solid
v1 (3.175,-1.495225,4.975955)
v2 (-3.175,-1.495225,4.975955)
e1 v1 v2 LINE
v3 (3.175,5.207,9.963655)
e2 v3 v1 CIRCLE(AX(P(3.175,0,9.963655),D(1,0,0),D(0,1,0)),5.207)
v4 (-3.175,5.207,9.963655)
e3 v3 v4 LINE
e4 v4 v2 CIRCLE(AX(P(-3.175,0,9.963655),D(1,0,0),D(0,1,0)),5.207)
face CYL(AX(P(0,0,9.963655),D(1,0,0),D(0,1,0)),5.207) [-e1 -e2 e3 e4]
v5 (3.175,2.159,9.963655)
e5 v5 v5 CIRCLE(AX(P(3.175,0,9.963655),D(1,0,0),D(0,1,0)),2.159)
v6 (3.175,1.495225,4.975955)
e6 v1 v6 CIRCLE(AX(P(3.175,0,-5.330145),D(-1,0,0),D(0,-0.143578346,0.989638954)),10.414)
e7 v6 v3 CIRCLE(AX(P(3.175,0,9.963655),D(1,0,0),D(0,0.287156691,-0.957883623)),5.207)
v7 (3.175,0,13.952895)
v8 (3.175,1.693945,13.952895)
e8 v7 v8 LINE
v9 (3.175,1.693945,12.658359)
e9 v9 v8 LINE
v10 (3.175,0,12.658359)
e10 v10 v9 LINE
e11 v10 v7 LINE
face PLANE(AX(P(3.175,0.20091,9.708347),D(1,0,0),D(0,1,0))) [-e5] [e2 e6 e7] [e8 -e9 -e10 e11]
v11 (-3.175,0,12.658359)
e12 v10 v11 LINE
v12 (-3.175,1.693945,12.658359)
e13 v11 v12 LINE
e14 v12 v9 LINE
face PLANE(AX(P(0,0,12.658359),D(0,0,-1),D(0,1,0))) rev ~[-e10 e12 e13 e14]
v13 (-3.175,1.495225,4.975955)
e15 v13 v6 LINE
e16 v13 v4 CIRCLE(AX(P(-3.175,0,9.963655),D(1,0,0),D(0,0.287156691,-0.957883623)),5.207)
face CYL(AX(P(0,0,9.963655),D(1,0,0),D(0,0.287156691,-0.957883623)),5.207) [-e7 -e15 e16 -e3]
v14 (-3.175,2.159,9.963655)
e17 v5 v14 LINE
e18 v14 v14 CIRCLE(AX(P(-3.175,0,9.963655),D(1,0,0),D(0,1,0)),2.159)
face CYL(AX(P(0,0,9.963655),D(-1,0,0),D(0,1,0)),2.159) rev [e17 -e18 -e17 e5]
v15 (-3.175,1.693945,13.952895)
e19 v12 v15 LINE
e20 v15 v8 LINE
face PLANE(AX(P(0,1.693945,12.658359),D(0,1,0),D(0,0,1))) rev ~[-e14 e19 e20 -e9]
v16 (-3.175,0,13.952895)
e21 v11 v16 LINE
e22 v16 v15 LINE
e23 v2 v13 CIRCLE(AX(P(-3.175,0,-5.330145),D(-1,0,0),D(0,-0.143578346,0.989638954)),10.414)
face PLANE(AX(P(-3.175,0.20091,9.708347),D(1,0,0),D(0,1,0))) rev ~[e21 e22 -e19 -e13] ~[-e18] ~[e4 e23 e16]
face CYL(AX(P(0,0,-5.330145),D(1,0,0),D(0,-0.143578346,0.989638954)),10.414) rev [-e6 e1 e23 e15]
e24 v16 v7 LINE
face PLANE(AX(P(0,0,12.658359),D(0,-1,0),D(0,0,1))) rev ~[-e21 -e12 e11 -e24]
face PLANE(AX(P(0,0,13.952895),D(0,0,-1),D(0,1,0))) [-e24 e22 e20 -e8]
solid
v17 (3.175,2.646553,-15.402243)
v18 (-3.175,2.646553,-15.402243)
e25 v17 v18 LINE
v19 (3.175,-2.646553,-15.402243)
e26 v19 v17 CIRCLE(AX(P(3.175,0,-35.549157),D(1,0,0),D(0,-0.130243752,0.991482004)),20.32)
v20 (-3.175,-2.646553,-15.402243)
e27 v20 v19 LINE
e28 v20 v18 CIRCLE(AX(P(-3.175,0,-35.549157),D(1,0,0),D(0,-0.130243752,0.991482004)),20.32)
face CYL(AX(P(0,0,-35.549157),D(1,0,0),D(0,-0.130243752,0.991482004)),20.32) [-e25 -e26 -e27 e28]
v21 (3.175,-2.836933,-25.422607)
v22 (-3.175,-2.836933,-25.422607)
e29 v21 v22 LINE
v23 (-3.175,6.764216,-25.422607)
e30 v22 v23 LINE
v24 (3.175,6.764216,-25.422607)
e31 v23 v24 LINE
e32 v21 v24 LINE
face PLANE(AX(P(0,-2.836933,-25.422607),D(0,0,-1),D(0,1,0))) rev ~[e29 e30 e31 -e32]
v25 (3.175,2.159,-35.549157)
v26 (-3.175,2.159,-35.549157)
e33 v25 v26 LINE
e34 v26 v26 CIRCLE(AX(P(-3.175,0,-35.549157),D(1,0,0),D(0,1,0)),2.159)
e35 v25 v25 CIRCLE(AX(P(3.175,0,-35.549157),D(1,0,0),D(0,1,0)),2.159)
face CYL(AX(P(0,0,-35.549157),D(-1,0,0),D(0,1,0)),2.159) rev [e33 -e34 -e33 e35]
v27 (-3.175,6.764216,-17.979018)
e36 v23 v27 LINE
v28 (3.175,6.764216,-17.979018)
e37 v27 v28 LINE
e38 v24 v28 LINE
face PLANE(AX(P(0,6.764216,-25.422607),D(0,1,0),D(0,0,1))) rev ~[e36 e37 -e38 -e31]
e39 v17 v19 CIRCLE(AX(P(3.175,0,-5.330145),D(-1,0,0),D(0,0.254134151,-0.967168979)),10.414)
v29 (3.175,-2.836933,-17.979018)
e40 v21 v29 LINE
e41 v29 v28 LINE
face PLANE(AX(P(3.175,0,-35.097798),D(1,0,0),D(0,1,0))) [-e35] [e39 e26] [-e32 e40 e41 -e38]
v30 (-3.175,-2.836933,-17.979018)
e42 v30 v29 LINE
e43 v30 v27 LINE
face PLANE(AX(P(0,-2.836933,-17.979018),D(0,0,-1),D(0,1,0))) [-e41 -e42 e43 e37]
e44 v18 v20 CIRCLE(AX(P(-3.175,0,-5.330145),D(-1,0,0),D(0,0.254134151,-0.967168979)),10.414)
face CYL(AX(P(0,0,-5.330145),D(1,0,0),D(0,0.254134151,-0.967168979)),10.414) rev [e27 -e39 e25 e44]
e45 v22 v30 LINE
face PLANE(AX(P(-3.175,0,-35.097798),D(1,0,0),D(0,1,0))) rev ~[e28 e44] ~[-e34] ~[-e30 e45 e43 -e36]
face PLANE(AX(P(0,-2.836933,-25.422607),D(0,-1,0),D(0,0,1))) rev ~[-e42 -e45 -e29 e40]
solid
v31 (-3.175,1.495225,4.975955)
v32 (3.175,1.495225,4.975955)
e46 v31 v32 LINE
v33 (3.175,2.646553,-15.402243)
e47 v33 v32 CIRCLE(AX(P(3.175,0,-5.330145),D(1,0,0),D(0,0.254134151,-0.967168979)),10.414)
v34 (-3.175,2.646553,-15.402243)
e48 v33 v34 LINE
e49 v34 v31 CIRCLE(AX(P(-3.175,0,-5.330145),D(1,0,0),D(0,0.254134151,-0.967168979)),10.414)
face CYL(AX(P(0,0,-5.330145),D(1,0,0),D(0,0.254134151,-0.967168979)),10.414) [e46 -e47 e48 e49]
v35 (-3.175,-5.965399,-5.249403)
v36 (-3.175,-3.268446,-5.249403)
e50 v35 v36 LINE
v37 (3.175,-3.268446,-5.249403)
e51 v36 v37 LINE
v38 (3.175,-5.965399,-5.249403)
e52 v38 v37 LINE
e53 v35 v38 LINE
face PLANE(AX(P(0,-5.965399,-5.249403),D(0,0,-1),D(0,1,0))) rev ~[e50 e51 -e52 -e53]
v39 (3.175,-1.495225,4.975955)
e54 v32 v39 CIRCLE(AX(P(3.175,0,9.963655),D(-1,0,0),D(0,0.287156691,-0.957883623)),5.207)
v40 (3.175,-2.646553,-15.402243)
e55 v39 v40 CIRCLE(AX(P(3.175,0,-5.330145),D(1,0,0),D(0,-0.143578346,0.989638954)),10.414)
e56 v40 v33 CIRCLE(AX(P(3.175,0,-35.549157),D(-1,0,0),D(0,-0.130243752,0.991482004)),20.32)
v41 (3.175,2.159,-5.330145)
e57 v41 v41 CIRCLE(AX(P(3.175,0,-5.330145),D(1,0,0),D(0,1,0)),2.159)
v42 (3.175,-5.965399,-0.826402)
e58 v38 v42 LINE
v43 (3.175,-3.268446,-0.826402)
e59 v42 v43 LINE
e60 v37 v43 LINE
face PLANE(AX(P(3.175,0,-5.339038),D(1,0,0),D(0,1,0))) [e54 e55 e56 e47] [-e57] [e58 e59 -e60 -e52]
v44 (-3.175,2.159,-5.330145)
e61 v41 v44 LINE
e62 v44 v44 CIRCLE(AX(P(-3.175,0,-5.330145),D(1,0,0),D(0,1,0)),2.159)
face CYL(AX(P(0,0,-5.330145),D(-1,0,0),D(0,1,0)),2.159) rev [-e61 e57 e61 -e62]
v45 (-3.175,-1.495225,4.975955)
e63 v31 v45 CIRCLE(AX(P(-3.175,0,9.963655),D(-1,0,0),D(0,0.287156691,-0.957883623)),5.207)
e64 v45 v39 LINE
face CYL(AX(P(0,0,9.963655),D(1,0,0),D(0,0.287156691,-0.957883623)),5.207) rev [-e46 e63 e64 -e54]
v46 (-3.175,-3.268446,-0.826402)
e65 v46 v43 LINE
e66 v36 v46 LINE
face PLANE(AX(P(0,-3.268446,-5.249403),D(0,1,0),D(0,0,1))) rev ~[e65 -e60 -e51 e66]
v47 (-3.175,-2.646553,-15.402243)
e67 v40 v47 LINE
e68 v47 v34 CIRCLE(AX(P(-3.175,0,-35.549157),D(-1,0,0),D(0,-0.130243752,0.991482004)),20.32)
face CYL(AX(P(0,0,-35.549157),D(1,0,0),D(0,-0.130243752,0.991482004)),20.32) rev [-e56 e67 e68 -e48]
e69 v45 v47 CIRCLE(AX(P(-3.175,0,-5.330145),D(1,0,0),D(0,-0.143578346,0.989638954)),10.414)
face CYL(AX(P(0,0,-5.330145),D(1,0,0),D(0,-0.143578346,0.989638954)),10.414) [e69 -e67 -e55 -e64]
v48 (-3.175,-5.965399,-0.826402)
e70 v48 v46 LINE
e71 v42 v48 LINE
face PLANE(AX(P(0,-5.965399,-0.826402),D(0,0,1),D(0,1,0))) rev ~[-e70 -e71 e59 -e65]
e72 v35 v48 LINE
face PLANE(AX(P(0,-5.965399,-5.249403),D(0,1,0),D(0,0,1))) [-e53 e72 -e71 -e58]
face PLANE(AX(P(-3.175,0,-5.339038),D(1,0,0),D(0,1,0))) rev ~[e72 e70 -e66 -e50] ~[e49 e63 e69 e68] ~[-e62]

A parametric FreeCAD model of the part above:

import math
import FreeCAD as App
import Part
import Sketcher

V = App.Vector
Q = App.Units.Quantity

doc = App.newDocument("Part")
params = doc.addObject("Spreadsheet::Sheet", "Params")
for row, (alias, value) in enumerate([
    ("sketch1_diameter", "0.17 in"),
    ("sketch1_radius", "0.41 in"),
    ("sketch1_radius2", "0.205 in"),
    ("pad1_length", "0.25 in"),
    ("sketch2_radius", "0.8 in"),
    ("sketch2_diameter", "0.17 in"),
    ("sketch2_radius2", "0.41 in"),
    ("sketch2_radius3", "0.205 in"),
    ("pad2_length", "0.25 in"),
    ("sketch3_radius", "0.8 in"),
    ("sketch3_diameter", "0.17 in"),
    ("sketch3_radius2", "0.41 in"),
    ("pad3_length", "0.25 in"),
], start=1):
    params.set(f"A{row}", alias)
    params.set(f"B{row}", "=" + value)
    params.setAlias(f"B{row}", alias)

body = doc.addObject("PartDesign::Body", "Body")

# Sketch on YZ plane
sketch1 = doc.addObject("Sketcher::SketchObject", "Sketch")
body.addObject(sketch1)
sketch1.AttachmentSupport = (doc.YZ_Plane, [""])
sketch1.MapMode = "FlatFace"
sketch1.addGeometry(Part.ArcOfCircle(Part.Circle(V(0, -5.3, 0), V(0, 0, 1), 10.4), math.radians(81.75), math.radians(98.25)), False)
sketch1.addGeometry(Part.ArcOfCircle(Part.Circle(V(0, 10, 0), V(0, 0, 1), 5.2), math.radians(-73), math.radians(0)), False)
sketch1.addGeometry(Part.ArcOfCircle(Part.Circle(V(0, 10, 0), V(0, 0, 1), 5.2), math.radians(0), math.radians(253)), False)
sketch1.addGeometry(Part.Circle(V(0, 10, 0), V(0, 0, 1), 2.2), False)
sketch1.addGeometry(Part.LineSegment(V(1.7, 12.7, 0), V(0, 12.7, 0)), False)
sketch1.addGeometry(Part.LineSegment(V(0, 12.7, 0), V(0, 14, 0)), False)
sketch1.addGeometry(Part.LineSegment(V(0, 14, 0), V(1.7, 14, 0)), False)
sketch1.addGeometry(Part.LineSegment(V(1.7, 14, 0), V(1.7, 12.7, 0)), False)
sketch1.addConstraint(Sketcher.Constraint("Coincident", 0, 1, 1, 1))
sketch1.addConstraint(Sketcher.Constraint("Tangent", 1, 2, 2, 1))
sketch1.addConstraint(Sketcher.Constraint("Coincident", 2, 2, 0, 2))
sketch1.addConstraint(Sketcher.Constraint("Coincident", 4, 2, 5, 1))
sketch1.addConstraint(Sketcher.Constraint("Coincident", 5, 2, 6, 1))
sketch1.addConstraint(Sketcher.Constraint("Coincident", 6, 2, 7, 1))
sketch1.addConstraint(Sketcher.Constraint("Coincident", 7, 2, 4, 1))
sketch1.addConstraint(Sketcher.Constraint("Horizontal", 4))
sketch1.addConstraint(Sketcher.Constraint("Vertical", 5))
sketch1.addConstraint(Sketcher.Constraint("Horizontal", 6))
sketch1.addConstraint(Sketcher.Constraint("Vertical", 7))
sketch1.addConstraint(Sketcher.Constraint("Coincident", 3, 3, 1, 3))
sketch1.addConstraint(Sketcher.Constraint("Equal", 1, 2))
sketch1.addConstraint(Sketcher.Constraint("Symmetric", 0, 1, 2, 2, -2))
sketch1.addConstraint(Sketcher.Constraint("PointOnObject", 4, 2, -2))
sketch1.addConstraint(Sketcher.Constraint("Horizontal", 3, 3, 1, 2))
sketch1.addConstraint(Sketcher.Constraint("Diameter", 3, Q("0.17 in")))
sketch1.addConstraint(Sketcher.Constraint("Radius", 0, Q("0.41 in")))
sketch1.addConstraint(Sketcher.Constraint("Radius", 1, Q("0.205 in")))
sketch1.addConstraint(Sketcher.Constraint("DistanceY", 0, 3, 1, 3, 15.2938))
sketch1.addConstraint(Sketcher.Constraint("DistanceX", 4, 2, 4, 1, 1.693945))
sketch1.addConstraint(Sketcher.Constraint("DistanceY", 5, 1, 5, 2, 1.294537))
sketch1.addConstraint(Sketcher.Constraint("DistanceY", -1, 1, 4, 2, 12.658359))
sketch1.addConstraint(Sketcher.Constraint("DistanceY", 1, 3, 5, 2, 3.98924))
sketch1.setExpression("Constraints[16]", "Params.sketch1_diameter")
sketch1.setExpression("Constraints[17]", "Params.sketch1_radius")
sketch1.setExpression("Constraints[18]", "Params.sketch1_radius2")
pad1 = doc.addObject("PartDesign::Pad", "Pad")
body.addObject(pad1)
pad1.Profile = sketch1
pad1.setExpression("Length", "Params.pad1_length")
pad1.Midplane = True
body2 = doc.addObject("PartDesign::Body", "Body001")

# Sketch on YZ plane
sketch2 = doc.addObject("Sketcher::SketchObject", "Sketch001")
body2.addObject(sketch2)
sketch2.AttachmentSupport = (doc.getObject("YZ_Plane001"), [""])
sketch2.MapMode = "FlatFace"
sketch2.addGeometry(Part.ArcOfCircle(Part.Circle(V(0, -5.3, 0), V(0, 0, 1), 10.4), math.radians(-75), math.radians(82)), False)
sketch2.addGeometry(Part.ArcOfCircle(Part.Circle(V(0, 10, 0), V(0, 0, 1), 5.2), math.radians(-107), math.radians(-73)), False)
sketch2.addGeometry(Part.ArcOfCircle(Part.Circle(V(0, -5.3, 0), V(0, 0, 1), 10.4), math.radians(98), math.radians(255)), False)
sketch2.addGeometry(Part.ArcOfCircle(Part.Circle(V(0, -35.5, 0), V(0, 0, 1), 20.3), math.radians(82.52), math.radians(97.48)), False)
sketch2.addGeometry(Part.Circle(V(0, -5.3, 0), V(0, 0, 1), 2.2), False)
sketch2.addGeometry(Part.LineSegment(V(-3.3, -5.2, 0), V(-6, -5.2, 0)), False)
sketch2.addGeometry(Part.LineSegment(V(-6, -5.2, 0), V(-6, -0.8, 0)), False)
sketch2.addGeometry(Part.LineSegment(V(-6, -0.8, 0), V(-3.3, -0.8, 0)), False)
sketch2.addGeometry(Part.LineSegment(V(-3.3, -0.8, 0), V(-3.3, -5.2, 0)), False)
sketch2.addConstraint(Sketcher.Constraint("Coincident", 0, 2, 1, 2))
sketch2.addConstraint(Sketcher.Constraint("Coincident", 1, 1, 2, 1))
sketch2.addConstraint(Sketcher.Constraint("Coincident", 2, 2, 3, 2))
sketch2.addConstraint(Sketcher.Constraint("Coincident", 3, 1, 0, 1))
sketch2.addConstraint(Sketcher.Constraint("Coincident", 5, 2, 6, 1))
sketch2.addConstraint(Sketcher.Constraint("Coincident", 6, 2, 7, 1))
sketch2.addConstraint(Sketcher.Constraint("Coincident", 7, 2, 8, 1))
sketch2.addConstraint(Sketcher.Constraint("Coincident", 8, 2, 5, 1))
sketch2.addConstraint(Sketcher.Constraint("Horizontal", 5))
sketch2.addConstraint(Sketcher.Constraint("Vertical", 6))
sketch2.addConstraint(Sketcher.Constraint("Horizontal", 7))
sketch2.addConstraint(Sketcher.Constraint("Vertical", 8))
sketch2.addConstraint(Sketcher.Constraint("Coincident", 2, 3, 0, 3))
sketch2.addConstraint(Sketcher.Constraint("Coincident", 4, 3, 0, 3))
sketch2.addConstraint(Sketcher.Constraint("Equal", 0, 2))
sketch2.addConstraint(Sketcher.Constraint("Symmetric", 0, 2, 1, 1, -2))
sketch2.addConstraint(Sketcher.Constraint("PointOnObject", 3, 3, -2))
sketch2.addConstraint(Sketcher.Constraint("Radius", 3, Q("0.8 in")))
sketch2.addConstraint(Sketcher.Constraint("Diameter", 4, Q("0.17 in")))
sketch2.addConstraint(Sketcher.Constraint("Radius", 0, Q("0.41 in")))
sketch2.addConstraint(Sketcher.Constraint("Radius", 1, Q("0.205 in")))
sketch2.addConstraint(Sketcher.Constraint("DistanceY", 6, 1, 6, 2, 4.423001))
sketch2.addConstraint(Sketcher.Constraint("DistanceX", 5, 2, -1, 1, 5.965399))
sketch2.addConstraint(Sketcher.Constraint("DistanceY", 0, 3, 1, 3, 15.2938))
sketch2.addConstraint(Sketcher.Constraint("DistanceX", 5, 2, 5, 1, 2.696953))
sketch2.addConstraint(Sketcher.Constraint("DistanceX", 2, 2, 1, 1, 1.151328))
sketch2.addConstraint(Sketcher.Constraint("DistanceY", 0, 3, 5, 2, 0.080742))
sketch2.addConstraint(Sketcher.Constraint("DistanceY", 0, 3, -1, 1, 5.330145))
sketch2.setExpression("Constraints[17]", "Params.sketch2_radius")
sketch2.setExpression("Constraints[18]", "Params.sketch2_diameter")
sketch2.setExpression("Constraints[19]", "Params.sketch2_radius2")
sketch2.setExpression("Constraints[20]", "Params.sketch2_radius3")
pad2 = doc.addObject("PartDesign::Pad", "Pad001")
body2.addObject(pad2)
pad2.Profile = sketch2
pad2.setExpression("Length", "Params.pad2_length")
pad2.Midplane = True
body3 = doc.addObject("PartDesign::Body", "Body002")

# Sketch on YZ plane
sketch3 = doc.addObject("Sketcher::SketchObject", "Sketch002")
body3.addObject(sketch3)
sketch3.AttachmentSupport = (doc.getObject("YZ_Plane002"), [""])
sketch3.MapMode = "FlatFace"
sketch3.addGeometry(Part.ArcOfCircle(Part.Circle(V(0, -5.3, 0), V(0, 0, 1), 10.4), math.radians(-105), math.radians(-75)), False)
sketch3.addGeometry(Part.ArcOfCircle(Part.Circle(V(0, -35.5, 0), V(0, 0, 1), 20.3), math.radians(97), math.radians(443)), False)
sketch3.addGeometry(Part.Circle(V(0, -35.5, 0), V(0, 0, 1), 2.2), False)
sketch3.addGeometry(Part.LineSegment(V(6.8, -25.4, 0), V(-2.8, -25.4, 0)), False)
sketch3.addGeometry(Part.LineSegment(V(-2.8, -25.4, 0), V(-2.8, -18, 0)), False)
sketch3.addGeometry(Part.LineSegment(V(-2.8, -18, 0), V(6.8, -18, 0)), False)
sketch3.addGeometry(Part.LineSegment(V(6.8, -18, 0), V(6.8, -25.4, 0)), False)
sketch3.addConstraint(Sketcher.Constraint("Coincident", 0, 1, 1, 1))
sketch3.addConstraint(Sketcher.Constraint("Coincident", 1, 2, 0, 2))
sketch3.addConstraint(Sketcher.Constraint("Coincident", 3, 2, 4, 1))
sketch3.addConstraint(Sketcher.Constraint("Coincident", 4, 2, 5, 1))
sketch3.addConstraint(Sketcher.Constraint("Coincident", 5, 2, 6, 1))
sketch3.addConstraint(Sketcher.Constraint("Coincident", 6, 2, 3, 1))
sketch3.addConstraint(Sketcher.Constraint("Horizontal", 3))
sketch3.addConstraint(Sketcher.Constraint("Vertical", 4))
sketch3.addConstraint(Sketcher.Constraint("Horizontal", 5))
sketch3.addConstraint(Sketcher.Constraint("Vertical", 6))
sketch3.addConstraint(Sketcher.Constraint("Coincident", 2, 3, 1, 3))
sketch3.addConstraint(Sketcher.Constraint("Symmetric", 0, 1, 1, 2, -2))
sketch3.addConstraint(Sketcher.Constraint("Radius", 1, Q("0.8 in")))
sketch3.addConstraint(Sketcher.Constraint("Diameter", 2, Q("0.17 in")))
sketch3.addConstraint(Sketcher.Constraint("Radius", 0, Q("0.41 in")))
sketch3.addConstraint(Sketcher.Constraint("DistanceX", 3, 2, 3, 1, 9.601149))
sketch3.addConstraint(Sketcher.Constraint("DistanceY", 4, 1, 4, 2, 7.443588))
sketch3.addConstraint(Sketcher.Constraint("DistanceY", 4, 2, -1, 1, 17.979018))
sketch3.addConstraint(Sketcher.Constraint("DistanceX", 3, 2, 0, 1, 0.19038))
sketch3.addConstraint(Sketcher.Constraint("DistanceY", 1, 3, 3, 2, 10.126551))
sketch3.addConstraint(Sketcher.Constraint("DistanceY", 3, 2, 0, 3, 20.092461))
sketch3.setExpression("Constraints[12]", "Params.sketch3_radius")
sketch3.setExpression("Constraints[13]", "Params.sketch3_diameter")
sketch3.setExpression("Constraints[14]", "Params.sketch3_radius2")
pad3 = doc.addObject("PartDesign::Pad", "Pad002")
body3.addObject(pad3)
pad3.Profile = sketch3
pad3.setExpression("Length", "Params.pad3_length")
pad3.Midplane = True

doc.recompute()
